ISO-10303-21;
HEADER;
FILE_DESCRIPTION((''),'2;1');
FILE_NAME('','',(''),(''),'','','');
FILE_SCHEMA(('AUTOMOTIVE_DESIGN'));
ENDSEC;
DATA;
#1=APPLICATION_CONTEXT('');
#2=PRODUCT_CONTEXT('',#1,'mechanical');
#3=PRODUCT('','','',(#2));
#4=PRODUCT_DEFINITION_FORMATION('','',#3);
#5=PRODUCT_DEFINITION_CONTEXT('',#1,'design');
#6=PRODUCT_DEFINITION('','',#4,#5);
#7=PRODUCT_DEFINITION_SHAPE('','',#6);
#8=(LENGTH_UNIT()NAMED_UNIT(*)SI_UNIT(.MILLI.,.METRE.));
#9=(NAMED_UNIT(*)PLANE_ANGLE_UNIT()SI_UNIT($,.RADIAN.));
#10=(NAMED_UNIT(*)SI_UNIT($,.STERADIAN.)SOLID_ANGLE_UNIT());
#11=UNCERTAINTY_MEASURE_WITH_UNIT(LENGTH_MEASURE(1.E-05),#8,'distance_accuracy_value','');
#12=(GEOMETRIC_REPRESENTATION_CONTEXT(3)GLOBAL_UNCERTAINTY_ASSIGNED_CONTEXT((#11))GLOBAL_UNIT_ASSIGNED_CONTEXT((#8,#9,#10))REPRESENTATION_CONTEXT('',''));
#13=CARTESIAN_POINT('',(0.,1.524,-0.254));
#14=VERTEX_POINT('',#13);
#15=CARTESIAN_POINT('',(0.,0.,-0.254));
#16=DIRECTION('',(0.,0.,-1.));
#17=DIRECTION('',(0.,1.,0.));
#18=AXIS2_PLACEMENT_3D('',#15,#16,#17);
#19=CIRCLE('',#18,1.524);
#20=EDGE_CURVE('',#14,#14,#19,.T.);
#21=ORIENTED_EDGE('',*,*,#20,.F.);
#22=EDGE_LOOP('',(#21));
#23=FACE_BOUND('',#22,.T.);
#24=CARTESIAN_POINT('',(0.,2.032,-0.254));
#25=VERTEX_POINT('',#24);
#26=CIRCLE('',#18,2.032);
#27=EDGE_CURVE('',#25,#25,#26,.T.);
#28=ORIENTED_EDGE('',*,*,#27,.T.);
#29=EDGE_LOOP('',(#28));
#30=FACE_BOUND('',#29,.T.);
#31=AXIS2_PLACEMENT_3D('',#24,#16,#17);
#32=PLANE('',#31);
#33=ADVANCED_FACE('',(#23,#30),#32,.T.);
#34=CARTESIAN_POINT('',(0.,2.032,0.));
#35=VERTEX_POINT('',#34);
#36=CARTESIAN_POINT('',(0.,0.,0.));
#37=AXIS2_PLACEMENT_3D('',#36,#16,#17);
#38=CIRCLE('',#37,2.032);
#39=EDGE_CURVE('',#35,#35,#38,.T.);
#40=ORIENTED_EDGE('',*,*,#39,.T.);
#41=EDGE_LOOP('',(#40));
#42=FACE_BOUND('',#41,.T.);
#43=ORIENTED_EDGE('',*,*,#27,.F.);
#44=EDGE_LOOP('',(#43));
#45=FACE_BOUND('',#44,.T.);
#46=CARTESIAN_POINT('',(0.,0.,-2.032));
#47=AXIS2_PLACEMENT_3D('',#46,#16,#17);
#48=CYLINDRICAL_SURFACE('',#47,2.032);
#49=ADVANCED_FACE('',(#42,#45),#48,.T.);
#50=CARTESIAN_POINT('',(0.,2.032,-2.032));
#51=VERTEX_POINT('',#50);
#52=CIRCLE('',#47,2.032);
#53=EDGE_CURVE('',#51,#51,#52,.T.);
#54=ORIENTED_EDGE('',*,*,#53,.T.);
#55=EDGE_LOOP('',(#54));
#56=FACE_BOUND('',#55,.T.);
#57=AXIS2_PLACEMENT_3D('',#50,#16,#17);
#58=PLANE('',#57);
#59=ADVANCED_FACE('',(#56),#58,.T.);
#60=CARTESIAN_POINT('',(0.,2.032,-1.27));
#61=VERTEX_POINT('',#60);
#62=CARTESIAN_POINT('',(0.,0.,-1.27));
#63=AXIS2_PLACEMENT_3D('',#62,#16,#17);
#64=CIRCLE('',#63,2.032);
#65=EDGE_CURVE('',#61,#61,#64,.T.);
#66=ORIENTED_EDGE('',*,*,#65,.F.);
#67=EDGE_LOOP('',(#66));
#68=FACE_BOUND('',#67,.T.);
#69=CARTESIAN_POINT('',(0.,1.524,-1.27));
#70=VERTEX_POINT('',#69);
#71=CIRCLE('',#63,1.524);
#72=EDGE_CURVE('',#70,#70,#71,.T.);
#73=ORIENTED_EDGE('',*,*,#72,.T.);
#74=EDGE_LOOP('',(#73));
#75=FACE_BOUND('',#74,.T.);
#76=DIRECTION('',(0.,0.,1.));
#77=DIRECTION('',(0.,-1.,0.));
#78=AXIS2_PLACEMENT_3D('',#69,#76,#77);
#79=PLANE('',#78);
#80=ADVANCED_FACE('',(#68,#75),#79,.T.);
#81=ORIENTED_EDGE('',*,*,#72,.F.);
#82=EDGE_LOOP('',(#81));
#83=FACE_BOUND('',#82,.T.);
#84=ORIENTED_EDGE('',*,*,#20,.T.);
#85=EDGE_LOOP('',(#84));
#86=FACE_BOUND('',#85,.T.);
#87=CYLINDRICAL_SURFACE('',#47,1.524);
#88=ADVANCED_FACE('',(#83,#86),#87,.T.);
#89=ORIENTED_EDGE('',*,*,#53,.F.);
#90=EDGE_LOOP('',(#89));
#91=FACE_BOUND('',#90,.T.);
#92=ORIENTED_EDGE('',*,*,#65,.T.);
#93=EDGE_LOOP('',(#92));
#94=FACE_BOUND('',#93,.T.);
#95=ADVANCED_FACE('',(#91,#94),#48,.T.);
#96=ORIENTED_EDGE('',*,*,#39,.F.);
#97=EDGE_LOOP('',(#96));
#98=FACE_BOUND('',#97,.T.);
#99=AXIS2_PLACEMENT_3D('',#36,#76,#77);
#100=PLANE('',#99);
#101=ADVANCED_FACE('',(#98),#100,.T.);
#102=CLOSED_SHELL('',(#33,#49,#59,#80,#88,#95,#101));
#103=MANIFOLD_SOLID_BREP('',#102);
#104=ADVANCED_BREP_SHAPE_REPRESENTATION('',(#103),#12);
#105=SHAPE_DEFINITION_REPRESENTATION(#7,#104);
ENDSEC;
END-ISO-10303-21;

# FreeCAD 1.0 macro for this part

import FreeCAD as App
import Part
import Sketcher
from FreeCAD import Vector
Q = App.Units.Quantity

doc = App.newDocument("Part")
body = doc.addObject("PartDesign::Body", "Body")

# Sketch on YZ plane
sketch1 = body.newObject("Sketcher::SketchObject", "Sketch")
sketch1.AttachmentSupport = (doc.getObject("YZ_Plane"), [""])
sketch1.MapMode = "FlatFace"
sketch1.addGeometry([
    Part.LineSegment(Vector(2.032, 0, 0), Vector(0, 0, 0)),  # 0
    Part.LineSegment(Vector(0, 0, 0), Vector(0, -2.032, 0)),  # 1
    Part.LineSegment(Vector(0, -2.032, 0), Vector(2.032, -2.032, 0)),  # 2
    Part.LineSegment(Vector(2.032, -2.032, 0), Vector(2.032, -1.27, 0)),  # 3
    Part.LineSegment(Vector(2.032, -1.27, 0), Vector(1.524, -1.27, 0)),  # 4
    Part.LineSegment(Vector(1.524, -1.27, 0), Vector(1.524, -0.254, 0)),  # 5
    Part.LineSegment(Vector(1.524, -0.254, 0), Vector(2.032, -0.254, 0)),  # 6
    Part.LineSegment(Vector(2.032, -0.254, 0), Vector(2.032, 0, 0)),  # 7
], False)
sketch1.addConstraint([
    Sketcher.Constraint("Coincident", 0, 2, 1, 1),
    Sketcher.Constraint("Coincident", 1, 2, 2, 1),
    Sketcher.Constraint("Coincident", 2, 2, 3, 1),
    Sketcher.Constraint("Coincident", 3, 2, 4, 1),
    Sketcher.Constraint("Coincident", 4, 2, 5, 1),
    Sketcher.Constraint("Coincident", 5, 2, 6, 1),
    Sketcher.Constraint("Coincident", 6, 2, 7, 1),
    Sketcher.Constraint("Coincident", 7, 2, 0, 1),
    Sketcher.Constraint("Horizontal", 0),
    Sketcher.Constraint("Vertical", 1),
    Sketcher.Constraint("Horizontal", 2),
    Sketcher.Constraint("Vertical", 3),
    Sketcher.Constraint("Horizontal", 4),
    Sketcher.Constraint("Vertical", 5),
    Sketcher.Constraint("Horizontal", 6),
    Sketcher.Constraint("Vertical", 7),
    Sketcher.Constraint("Coincident", 0, 2, -1, 1),
    Sketcher.Constraint("Vertical", 3, 2, 6, 2),
    Sketcher.Constraint("Equal", 2, 1),
    Sketcher.Constraint("DistanceX", 0, 2, 0, 1, Q("0.08 in")),
    Sketcher.Constraint("DistanceX", 4, 2, 4, 1, Q("0.02 in")),
    Sketcher.Constraint("DistanceY", 3, 1, 3, 2, Q("0.03 in")),
    Sketcher.Constraint("DistanceY", 5, 1, 5, 2, Q("0.04 in")),
])
revolution = body.newObject("PartDesign::Revolution", "Revolution")
revolution.Profile = sketch1
revolution.ReferenceAxis = (sketch1, ["V_Axis"])
revolution.Angle = 360

doc.recompute()
